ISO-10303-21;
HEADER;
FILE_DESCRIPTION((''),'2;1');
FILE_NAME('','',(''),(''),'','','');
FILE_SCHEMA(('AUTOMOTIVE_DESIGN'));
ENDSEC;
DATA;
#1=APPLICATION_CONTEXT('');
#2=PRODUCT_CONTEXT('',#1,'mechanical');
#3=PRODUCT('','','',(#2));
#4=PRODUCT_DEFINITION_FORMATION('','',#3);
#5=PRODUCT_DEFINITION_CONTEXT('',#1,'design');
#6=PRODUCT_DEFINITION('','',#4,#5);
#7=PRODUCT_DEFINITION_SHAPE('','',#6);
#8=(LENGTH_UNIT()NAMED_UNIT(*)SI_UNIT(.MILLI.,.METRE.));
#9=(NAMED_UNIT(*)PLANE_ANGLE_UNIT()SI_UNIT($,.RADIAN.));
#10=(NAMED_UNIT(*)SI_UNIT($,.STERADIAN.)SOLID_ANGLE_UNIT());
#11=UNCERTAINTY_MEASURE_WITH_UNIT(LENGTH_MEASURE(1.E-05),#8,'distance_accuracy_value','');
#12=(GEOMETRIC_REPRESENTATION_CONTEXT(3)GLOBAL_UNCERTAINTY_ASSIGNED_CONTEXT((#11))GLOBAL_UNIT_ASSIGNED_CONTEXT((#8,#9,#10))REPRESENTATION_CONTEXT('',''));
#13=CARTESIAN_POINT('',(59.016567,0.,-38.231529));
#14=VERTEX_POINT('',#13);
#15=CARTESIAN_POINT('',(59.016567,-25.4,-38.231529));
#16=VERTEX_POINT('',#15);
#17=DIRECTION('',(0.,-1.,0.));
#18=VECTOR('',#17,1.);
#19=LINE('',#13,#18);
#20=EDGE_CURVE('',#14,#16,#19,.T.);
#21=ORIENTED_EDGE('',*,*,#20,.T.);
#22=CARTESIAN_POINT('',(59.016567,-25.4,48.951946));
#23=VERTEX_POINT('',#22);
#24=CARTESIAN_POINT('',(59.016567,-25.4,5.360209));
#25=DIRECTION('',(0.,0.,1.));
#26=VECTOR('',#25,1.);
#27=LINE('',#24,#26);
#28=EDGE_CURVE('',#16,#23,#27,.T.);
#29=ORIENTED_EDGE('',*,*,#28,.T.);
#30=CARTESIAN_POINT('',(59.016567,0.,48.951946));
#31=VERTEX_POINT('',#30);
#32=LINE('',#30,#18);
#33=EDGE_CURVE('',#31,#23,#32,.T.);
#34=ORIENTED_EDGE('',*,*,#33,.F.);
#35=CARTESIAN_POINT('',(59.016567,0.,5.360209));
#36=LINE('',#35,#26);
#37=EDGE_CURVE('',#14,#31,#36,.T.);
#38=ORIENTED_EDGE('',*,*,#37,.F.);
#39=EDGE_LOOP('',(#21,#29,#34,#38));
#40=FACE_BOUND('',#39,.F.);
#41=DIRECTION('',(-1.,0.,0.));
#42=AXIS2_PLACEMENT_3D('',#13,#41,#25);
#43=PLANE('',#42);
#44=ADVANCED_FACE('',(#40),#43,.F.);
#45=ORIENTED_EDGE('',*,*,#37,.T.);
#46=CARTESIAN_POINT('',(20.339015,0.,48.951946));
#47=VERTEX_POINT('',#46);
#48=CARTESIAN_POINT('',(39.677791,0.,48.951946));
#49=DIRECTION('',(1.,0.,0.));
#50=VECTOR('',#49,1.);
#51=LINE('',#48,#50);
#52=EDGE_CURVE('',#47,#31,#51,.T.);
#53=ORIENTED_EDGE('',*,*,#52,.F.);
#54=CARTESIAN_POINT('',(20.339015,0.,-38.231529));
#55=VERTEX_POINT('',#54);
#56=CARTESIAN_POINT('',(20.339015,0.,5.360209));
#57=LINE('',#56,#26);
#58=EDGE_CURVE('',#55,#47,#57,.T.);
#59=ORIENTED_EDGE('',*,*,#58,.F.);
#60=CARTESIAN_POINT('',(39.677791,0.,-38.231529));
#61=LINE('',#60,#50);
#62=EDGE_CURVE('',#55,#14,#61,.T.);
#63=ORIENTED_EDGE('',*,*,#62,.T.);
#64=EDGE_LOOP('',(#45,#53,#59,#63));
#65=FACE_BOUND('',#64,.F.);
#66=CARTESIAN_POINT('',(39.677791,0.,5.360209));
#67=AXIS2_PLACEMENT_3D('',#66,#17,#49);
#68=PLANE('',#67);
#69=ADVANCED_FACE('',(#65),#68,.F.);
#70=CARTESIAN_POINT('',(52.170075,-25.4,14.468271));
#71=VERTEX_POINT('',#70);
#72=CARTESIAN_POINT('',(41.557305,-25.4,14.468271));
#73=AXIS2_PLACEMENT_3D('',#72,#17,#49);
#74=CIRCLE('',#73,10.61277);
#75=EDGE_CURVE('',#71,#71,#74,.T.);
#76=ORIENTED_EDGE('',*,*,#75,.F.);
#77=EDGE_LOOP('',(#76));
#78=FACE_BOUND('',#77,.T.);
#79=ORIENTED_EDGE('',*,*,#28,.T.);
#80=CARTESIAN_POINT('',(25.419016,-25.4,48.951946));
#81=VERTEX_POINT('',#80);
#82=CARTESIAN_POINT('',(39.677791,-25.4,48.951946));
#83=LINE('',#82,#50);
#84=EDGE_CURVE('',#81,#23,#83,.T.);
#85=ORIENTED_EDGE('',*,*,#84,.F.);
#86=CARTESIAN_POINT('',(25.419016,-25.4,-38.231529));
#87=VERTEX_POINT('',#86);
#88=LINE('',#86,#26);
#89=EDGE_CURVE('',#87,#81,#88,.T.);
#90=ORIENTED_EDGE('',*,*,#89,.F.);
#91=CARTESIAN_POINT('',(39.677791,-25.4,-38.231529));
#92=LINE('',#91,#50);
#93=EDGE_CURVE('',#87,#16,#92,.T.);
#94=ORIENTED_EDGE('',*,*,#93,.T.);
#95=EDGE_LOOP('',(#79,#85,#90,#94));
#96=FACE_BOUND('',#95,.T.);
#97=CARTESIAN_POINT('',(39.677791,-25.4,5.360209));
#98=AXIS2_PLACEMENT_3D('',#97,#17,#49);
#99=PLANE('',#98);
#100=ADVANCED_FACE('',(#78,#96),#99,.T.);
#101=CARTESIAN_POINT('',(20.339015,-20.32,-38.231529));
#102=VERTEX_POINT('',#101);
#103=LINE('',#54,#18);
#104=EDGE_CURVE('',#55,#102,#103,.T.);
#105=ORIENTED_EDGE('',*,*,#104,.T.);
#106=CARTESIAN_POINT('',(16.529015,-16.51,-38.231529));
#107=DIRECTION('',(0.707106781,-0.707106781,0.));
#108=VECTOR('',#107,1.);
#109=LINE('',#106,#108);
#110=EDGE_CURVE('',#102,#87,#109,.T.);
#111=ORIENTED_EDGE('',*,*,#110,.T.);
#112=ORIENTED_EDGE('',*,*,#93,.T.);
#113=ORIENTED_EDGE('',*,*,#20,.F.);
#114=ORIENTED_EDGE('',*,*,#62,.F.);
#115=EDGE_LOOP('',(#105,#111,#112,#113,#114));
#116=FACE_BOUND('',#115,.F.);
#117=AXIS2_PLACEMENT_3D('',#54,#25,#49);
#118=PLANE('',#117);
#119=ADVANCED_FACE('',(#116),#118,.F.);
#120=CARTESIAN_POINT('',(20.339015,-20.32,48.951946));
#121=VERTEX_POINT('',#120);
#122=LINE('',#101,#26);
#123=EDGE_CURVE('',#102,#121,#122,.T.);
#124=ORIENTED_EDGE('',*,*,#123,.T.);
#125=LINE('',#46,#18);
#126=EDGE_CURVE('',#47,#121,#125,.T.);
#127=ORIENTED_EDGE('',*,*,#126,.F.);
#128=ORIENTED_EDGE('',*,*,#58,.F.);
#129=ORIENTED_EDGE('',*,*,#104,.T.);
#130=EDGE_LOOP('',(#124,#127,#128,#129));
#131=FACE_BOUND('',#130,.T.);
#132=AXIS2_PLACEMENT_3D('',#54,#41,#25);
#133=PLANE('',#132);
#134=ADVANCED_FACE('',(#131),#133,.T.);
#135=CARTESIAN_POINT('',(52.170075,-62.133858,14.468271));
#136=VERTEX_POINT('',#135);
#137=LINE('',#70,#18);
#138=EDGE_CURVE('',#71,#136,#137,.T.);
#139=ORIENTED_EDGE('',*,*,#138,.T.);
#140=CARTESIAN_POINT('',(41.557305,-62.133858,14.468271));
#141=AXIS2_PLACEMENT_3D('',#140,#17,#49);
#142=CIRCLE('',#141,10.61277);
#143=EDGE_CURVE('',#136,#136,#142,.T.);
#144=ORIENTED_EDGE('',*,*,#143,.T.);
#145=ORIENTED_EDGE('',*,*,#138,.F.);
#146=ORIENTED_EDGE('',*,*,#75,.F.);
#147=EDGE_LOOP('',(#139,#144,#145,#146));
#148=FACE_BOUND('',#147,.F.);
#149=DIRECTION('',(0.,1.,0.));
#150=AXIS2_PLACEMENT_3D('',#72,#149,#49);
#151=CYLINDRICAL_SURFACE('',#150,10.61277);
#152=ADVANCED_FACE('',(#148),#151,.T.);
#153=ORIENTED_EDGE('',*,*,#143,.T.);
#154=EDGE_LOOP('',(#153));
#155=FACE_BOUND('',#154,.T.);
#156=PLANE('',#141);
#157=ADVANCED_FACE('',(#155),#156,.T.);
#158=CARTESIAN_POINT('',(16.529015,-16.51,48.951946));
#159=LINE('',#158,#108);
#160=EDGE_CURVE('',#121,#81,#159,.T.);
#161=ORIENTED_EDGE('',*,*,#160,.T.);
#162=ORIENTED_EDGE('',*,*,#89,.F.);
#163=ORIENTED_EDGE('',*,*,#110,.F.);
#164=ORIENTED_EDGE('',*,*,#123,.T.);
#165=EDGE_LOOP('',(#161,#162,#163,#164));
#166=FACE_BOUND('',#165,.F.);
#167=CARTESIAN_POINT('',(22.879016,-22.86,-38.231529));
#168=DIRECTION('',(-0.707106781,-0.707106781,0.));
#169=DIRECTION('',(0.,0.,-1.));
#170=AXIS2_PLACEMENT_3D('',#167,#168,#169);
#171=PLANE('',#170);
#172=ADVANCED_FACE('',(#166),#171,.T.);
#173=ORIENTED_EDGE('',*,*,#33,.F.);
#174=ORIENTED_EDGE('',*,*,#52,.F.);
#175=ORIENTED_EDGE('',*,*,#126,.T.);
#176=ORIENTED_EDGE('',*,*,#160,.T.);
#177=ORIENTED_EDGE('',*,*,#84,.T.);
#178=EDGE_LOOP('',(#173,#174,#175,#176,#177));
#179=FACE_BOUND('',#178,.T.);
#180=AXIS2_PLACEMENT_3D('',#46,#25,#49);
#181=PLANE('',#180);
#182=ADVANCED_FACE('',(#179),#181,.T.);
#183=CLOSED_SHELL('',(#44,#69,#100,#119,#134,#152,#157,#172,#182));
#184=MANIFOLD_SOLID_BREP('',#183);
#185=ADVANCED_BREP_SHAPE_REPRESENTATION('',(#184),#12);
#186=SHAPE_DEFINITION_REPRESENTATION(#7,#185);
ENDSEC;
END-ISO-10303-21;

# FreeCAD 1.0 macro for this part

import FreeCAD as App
import Part
import Sketcher
from FreeCAD import Vector
Q = App.Units.Quantity


def edges_at(feature, points):
    """Names of the edges that pass closest to the given points."""
    edges = feature.Shape.Edges
    near = lambda p: min(range(len(edges)), key=lambda i: edges[i].distToShape(Part.Vertex(*p))[0])
    return sorted({f"Edge{near(p) + 1}" for p in points})


def add_polygon(sketch, points):
    """Adds a closed chain of lines whose ends are joined by coincident constraints."""
    first, n = sketch.GeometryCount, len(points)
    for a, b in zip(points, points[1:] + points[:1]):
        sketch.addGeometry(Part.LineSegment(App.Vector(*a, 0), App.Vector(*b, 0)), False)
    for i in range(n):
        sketch.addConstraint(Sketcher.Constraint("Coincident", first + i, 2, first + (i + 1) % n, 1))

doc = App.newDocument("Part")
body = doc.addObject("PartDesign::Body", "Body")

sketch1 = doc.addObject("Sketcher::SketchObject", "Sketch")
body.addObject(sketch1)
sketch1.AttachmentSupport = (doc.XZ_Plane, [""])
sketch1.MapMode = "FlatFace"
add_polygon(sketch1, [(20, 49), (20, -38), (59, -38), (59, 49)])
sketch1.addConstraint([
    Sketcher.Constraint("Vertical", 0),
    Sketcher.Constraint("Horizontal", 1),
    Sketcher.Constraint("Vertical", 2),
    Sketcher.Constraint("Horizontal", 3),
    Sketcher.Constraint("DistanceX", 1, 1, 1, 2, Q("38.677551 mm")),
    Sketcher.Constraint("DistanceY", 0, 2, 0, 1, Q("87.183475 mm")),
    Sketcher.Constraint("DistanceY", 0, 2, -1, 1, Q("38.231529 mm")),
    Sketcher.Constraint("DistanceX", -1, 1, 0, 2, Q("20.339015 mm")),
])
pad1 = doc.addObject("PartDesign::Pad", "Pad")
body.addObject(pad1)
pad1.Profile = sketch1
pad1.Length = Q("1 in")

sketch2 = doc.addObject("Sketcher::SketchObject", "Sketch001")
body.addObject(sketch2)
sketch2.AttachmentSupport = (doc.XZ_Plane, [""])
sketch2.MapMode = "FlatFace"
sketch2.AttachmentOffset = App.Placement(Vector(0, 0, 1 * 25.4), App.Rotation())
sketch2.addGeometry(Part.Circle(Vector(42, 14, 0), Vector(0, 0, 1), 11), False)
sketch2.addConstraint([
    Sketcher.Constraint("Diameter", 0, Q("21.22554 mm")),
    Sketcher.Constraint("DistanceY", -1, 1, 0, 3, Q("14.468271 mm")),
    Sketcher.Constraint("DistanceX", -1, 1, 0, 3, Q("41.557305 mm")),
])
pad2 = doc.addObject("PartDesign::Pad", "Pad001")
body.addObject(pad2)
pad2.Profile = sketch2
pad2.Length = 36.733858
doc.recompute()

chamfer = doc.addObject("PartDesign::Chamfer", "Chamfer")
body.addObject(chamfer)
chamfer.Base = (pad2, edges_at(pad2, [(20.339, -25.4, 5.36)]))
chamfer.Size = Q("0.2 in")

doc.recompute()
